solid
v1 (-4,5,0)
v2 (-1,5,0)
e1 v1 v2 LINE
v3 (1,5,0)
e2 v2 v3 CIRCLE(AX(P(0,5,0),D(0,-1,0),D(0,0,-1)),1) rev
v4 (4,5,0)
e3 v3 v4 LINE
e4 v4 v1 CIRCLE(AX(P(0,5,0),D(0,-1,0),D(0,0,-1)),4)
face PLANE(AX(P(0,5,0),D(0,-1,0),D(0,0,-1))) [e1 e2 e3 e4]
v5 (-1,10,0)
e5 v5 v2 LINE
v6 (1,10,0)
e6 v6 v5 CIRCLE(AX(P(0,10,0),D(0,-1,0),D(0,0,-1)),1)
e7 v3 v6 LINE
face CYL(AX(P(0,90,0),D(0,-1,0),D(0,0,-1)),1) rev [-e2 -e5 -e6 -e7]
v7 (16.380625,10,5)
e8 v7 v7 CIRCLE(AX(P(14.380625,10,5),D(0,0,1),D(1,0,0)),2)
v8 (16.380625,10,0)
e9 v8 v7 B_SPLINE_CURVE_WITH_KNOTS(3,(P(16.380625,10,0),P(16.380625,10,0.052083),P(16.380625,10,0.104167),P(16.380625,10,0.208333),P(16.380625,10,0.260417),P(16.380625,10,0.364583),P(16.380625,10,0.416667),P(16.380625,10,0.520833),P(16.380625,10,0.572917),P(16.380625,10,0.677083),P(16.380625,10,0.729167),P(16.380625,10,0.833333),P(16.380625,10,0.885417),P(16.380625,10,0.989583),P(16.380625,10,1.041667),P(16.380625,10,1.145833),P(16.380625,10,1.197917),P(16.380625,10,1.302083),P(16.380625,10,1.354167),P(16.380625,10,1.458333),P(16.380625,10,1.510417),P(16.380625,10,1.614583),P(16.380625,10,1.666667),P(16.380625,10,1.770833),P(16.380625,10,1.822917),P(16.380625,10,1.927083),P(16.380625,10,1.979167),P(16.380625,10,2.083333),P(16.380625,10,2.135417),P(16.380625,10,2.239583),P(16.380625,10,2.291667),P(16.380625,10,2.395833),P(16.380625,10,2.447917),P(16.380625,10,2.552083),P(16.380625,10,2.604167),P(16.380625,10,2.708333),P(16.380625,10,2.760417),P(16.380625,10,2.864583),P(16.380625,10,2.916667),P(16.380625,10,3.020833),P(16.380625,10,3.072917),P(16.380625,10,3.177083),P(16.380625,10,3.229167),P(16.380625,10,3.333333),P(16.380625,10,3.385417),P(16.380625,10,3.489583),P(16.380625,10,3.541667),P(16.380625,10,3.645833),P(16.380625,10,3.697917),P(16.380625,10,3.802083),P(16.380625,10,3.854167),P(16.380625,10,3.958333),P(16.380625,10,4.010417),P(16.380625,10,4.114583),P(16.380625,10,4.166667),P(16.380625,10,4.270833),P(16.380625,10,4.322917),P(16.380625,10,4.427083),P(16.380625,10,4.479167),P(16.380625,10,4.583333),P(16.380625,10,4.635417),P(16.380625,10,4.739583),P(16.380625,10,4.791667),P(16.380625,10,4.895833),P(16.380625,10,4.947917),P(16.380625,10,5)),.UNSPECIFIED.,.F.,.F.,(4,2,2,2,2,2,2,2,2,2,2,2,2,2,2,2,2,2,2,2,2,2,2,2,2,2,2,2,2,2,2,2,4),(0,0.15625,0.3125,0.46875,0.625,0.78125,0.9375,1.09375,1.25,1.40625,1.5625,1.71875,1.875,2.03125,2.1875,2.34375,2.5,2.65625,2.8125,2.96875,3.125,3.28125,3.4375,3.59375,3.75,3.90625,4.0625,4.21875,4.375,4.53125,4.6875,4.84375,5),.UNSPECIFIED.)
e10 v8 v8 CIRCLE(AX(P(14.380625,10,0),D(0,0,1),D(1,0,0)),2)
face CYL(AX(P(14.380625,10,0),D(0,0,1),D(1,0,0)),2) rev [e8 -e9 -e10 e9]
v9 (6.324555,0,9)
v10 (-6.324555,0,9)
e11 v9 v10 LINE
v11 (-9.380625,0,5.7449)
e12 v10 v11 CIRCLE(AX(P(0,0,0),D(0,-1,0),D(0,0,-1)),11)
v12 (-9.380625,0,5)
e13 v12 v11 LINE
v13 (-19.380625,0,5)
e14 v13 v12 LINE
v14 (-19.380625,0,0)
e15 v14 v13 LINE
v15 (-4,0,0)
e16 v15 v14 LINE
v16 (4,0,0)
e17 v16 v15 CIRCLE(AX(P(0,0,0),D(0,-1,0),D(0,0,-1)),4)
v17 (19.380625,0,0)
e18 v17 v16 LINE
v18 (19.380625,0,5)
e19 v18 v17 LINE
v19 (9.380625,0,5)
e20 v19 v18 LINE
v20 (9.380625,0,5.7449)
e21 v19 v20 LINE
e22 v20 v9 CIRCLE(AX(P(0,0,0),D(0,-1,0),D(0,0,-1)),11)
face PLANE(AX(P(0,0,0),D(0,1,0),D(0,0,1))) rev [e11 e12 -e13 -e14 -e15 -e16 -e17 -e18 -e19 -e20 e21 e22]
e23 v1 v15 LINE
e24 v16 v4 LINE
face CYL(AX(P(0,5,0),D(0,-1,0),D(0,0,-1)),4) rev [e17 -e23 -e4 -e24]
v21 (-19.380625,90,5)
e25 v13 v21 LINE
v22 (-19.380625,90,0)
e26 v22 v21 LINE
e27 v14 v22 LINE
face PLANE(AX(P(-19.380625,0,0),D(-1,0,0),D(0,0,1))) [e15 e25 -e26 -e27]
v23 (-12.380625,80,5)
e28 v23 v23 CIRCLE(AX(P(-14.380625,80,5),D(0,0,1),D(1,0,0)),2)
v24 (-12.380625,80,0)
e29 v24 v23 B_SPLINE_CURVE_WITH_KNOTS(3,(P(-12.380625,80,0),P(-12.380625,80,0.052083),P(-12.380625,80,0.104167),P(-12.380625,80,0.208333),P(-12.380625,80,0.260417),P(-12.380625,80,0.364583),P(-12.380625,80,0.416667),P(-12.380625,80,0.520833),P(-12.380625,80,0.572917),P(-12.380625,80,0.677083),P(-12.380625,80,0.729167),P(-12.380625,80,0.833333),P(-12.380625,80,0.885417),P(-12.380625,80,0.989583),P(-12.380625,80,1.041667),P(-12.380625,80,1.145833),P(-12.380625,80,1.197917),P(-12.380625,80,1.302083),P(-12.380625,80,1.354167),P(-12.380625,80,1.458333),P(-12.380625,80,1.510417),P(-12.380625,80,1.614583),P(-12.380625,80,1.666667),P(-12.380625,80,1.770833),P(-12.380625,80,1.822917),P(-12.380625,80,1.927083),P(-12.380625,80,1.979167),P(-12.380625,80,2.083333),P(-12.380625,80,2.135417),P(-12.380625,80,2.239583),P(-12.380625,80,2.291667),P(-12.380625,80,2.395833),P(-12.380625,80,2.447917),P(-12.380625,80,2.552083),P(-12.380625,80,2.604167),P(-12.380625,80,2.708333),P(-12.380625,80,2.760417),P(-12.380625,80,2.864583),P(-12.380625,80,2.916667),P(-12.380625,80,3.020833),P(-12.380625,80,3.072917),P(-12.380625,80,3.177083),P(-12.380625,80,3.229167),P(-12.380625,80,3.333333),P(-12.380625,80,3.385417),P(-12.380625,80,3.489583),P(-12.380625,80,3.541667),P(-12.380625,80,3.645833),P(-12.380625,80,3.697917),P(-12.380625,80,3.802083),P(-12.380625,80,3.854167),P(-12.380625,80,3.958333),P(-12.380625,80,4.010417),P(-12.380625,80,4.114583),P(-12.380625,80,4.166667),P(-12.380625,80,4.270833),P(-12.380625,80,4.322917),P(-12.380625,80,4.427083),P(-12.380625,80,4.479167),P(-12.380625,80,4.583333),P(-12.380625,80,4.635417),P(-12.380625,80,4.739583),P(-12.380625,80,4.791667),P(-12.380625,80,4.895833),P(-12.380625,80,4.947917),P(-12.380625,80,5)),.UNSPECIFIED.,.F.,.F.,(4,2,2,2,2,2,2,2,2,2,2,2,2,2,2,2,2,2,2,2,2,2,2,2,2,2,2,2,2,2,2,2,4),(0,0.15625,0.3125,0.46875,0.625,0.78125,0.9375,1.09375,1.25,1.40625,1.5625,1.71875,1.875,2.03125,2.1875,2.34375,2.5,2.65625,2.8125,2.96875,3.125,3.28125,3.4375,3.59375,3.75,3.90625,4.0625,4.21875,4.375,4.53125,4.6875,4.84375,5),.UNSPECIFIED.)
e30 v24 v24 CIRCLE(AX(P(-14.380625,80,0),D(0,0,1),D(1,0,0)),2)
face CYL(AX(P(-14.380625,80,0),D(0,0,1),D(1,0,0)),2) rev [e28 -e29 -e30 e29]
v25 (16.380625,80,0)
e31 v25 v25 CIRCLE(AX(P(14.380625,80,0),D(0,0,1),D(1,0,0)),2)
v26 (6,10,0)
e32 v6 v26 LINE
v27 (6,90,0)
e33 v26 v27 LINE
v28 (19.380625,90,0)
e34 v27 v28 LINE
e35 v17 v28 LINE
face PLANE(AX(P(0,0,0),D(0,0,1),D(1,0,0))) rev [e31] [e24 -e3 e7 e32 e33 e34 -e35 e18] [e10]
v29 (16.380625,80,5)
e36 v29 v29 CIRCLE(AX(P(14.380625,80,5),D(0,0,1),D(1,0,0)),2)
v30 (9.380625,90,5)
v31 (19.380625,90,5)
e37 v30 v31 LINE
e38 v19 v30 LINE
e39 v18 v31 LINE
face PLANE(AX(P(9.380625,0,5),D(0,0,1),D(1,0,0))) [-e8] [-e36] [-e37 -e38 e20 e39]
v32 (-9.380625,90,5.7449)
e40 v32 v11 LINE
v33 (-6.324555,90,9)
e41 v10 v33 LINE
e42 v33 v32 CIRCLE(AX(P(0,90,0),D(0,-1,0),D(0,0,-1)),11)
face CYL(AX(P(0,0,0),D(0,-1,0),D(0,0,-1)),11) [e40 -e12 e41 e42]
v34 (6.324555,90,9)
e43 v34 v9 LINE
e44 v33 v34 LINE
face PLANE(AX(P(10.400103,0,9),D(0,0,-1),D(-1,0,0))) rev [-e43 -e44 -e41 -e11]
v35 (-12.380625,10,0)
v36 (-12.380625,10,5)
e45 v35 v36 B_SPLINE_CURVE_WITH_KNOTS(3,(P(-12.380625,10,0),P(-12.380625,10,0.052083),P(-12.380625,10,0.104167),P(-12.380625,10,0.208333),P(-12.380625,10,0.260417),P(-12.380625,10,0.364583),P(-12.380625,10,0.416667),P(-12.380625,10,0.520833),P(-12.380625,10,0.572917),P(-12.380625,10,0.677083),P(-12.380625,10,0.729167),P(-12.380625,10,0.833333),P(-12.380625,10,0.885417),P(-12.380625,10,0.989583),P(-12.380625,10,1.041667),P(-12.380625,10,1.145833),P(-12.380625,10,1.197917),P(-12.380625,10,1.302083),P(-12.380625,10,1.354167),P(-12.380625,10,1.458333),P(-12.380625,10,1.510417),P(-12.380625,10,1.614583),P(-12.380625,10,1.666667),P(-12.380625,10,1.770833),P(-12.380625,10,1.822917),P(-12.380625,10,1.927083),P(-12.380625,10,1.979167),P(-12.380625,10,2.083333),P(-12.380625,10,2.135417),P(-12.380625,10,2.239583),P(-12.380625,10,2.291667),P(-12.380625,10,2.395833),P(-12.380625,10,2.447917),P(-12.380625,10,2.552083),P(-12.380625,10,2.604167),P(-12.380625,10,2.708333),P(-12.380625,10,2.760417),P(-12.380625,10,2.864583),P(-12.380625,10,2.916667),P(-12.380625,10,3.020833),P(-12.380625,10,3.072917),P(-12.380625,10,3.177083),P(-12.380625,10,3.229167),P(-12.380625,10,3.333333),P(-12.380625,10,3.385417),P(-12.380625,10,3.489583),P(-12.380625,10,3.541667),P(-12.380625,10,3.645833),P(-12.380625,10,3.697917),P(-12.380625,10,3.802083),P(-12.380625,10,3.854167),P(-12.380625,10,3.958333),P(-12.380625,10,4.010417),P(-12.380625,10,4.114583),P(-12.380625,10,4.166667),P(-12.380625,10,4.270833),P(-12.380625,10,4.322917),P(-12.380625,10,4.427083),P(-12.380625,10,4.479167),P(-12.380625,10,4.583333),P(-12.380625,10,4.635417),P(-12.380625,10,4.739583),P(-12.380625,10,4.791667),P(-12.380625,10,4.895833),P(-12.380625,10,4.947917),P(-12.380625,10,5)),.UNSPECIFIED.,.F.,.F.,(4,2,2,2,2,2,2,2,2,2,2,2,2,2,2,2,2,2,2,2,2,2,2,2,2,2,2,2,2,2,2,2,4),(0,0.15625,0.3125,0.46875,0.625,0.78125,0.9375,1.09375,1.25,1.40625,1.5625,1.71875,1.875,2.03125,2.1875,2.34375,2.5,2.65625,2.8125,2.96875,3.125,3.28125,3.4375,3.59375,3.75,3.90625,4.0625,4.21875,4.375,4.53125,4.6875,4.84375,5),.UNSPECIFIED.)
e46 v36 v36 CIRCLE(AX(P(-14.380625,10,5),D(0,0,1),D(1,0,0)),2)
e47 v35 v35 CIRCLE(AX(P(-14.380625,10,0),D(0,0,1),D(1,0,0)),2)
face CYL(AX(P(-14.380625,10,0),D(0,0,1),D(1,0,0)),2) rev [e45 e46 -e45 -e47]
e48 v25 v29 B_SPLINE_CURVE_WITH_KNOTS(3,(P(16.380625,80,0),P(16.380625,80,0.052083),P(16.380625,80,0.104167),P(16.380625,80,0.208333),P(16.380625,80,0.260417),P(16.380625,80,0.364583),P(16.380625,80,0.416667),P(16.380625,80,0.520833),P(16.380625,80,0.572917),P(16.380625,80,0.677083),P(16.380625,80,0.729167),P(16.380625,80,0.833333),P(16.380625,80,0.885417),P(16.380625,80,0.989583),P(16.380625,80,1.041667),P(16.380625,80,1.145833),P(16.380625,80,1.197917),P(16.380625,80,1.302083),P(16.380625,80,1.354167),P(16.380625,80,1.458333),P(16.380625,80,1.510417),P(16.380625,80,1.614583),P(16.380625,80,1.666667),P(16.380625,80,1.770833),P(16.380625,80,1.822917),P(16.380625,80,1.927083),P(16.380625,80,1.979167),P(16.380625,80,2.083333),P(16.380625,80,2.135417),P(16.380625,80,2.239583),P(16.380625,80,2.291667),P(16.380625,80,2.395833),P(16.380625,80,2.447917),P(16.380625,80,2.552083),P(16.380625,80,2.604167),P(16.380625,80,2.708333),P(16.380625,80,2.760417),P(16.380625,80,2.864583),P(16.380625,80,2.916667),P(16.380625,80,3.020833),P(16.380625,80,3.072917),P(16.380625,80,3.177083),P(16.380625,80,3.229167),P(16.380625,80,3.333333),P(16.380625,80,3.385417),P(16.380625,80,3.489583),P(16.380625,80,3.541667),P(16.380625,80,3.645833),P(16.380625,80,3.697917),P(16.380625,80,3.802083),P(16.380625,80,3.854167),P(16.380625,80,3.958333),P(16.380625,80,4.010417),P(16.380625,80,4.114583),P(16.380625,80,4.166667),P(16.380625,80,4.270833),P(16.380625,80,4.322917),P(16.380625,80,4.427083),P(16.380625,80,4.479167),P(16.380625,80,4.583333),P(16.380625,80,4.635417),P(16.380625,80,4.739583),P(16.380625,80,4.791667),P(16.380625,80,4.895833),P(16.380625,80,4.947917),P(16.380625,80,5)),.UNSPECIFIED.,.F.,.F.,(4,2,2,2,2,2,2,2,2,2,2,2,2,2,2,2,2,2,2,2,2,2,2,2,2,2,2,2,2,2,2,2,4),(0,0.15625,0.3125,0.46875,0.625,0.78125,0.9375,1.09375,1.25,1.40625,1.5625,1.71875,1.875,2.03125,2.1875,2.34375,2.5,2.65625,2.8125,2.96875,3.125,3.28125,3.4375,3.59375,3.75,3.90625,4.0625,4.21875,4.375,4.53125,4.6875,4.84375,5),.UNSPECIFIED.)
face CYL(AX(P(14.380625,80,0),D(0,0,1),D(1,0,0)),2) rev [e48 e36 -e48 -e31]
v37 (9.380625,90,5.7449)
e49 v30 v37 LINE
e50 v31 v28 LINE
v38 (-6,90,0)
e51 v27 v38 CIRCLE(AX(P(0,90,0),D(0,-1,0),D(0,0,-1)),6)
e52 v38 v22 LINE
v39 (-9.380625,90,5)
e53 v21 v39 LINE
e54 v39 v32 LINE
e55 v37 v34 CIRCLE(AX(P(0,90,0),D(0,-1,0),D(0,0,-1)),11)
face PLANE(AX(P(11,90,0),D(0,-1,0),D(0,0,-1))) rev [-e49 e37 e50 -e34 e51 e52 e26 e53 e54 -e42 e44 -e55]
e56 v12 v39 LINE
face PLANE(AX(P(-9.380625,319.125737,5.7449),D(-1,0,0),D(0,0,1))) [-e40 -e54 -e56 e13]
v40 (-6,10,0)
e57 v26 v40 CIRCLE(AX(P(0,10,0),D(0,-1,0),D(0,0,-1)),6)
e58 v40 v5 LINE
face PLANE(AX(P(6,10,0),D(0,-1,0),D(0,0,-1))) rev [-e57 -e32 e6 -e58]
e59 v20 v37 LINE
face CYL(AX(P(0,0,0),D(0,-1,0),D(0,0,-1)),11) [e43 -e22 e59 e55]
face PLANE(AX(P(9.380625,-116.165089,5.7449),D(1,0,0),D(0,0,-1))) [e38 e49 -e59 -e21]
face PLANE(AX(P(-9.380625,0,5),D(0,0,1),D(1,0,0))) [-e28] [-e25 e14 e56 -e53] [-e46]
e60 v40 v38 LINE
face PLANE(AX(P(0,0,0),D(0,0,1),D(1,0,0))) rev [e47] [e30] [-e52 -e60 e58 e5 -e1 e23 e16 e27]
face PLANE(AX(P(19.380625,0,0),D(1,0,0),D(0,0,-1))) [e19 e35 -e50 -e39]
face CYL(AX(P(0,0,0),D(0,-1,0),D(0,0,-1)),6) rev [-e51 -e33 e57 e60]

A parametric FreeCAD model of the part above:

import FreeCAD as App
import Part
import Sketcher

V = App.Vector
Q = App.Units.Quantity


def add_polygon(sketch, points):
    """Adds a closed chain of lines whose ends are joined by coincident constraints."""
    first, n = sketch.GeometryCount, len(points)
    for a, b in zip(points, points[1:] + points[:1]):
        sketch.addGeometry(Part.LineSegment(App.Vector(*a, 0), App.Vector(*b, 0)), False)
    for i in range(n):
        sketch.addConstraint(Sketcher.Constraint("Coincident", first + i, 2, first + (i + 1) % n, 1))

doc = App.newDocument("Part")
body = doc.addObject("PartDesign::Body", "Body")

# Sketch on XY plane
sketch1 = body.newObject("Sketcher::SketchObject", "Sketch")
sketch1.AttachmentSupport = (doc.getObject("XY_Plane"), [""])
sketch1.MapMode = "FlatFace"
add_polygon(sketch1, [(-11, 0), (0, 0), (0, 10), (-6, 10), (-6, 90), (-11, 90)])  # lines 0-5
sketch1.addConstraint([
    Sketcher.Constraint("Horizontal", 0),
    Sketcher.Constraint("Vertical", 1),
    Sketcher.Constraint("Horizontal", 2),
    Sketcher.Constraint("Vertical", 3),
    Sketcher.Constraint("Horizontal", 4),
    Sketcher.Constraint("Vertical", 5),
    Sketcher.Constraint("Coincident", 0, 2, -1, 1),
    Sketcher.Constraint("DistanceX", 0, 1, 0, 2, Q("11 mm")),
    Sketcher.Constraint("DistanceX", 2, 2, 2, 1, Q("6 mm")),
    Sketcher.Constraint("DistanceY", 1, 1, 1, 2, Q("10 mm")),
    Sketcher.Constraint("DistanceY", 3, 1, 3, 2, Q("80 mm")),
])
revolution = body.newObject("PartDesign::Revolution", "Revolution")
revolution.Profile = sketch1
revolution.ReferenceAxis = (sketch1, ["V_Axis"])
revolution.Angle = 180

# Sketch on XZ plane
sketch2 = body.newObject("Sketcher::SketchObject", "Sketch001")
sketch2.AttachmentSupport = (doc.getObject("XZ_Plane"), [""])
sketch2.MapMode = "FlatFace"
sketch2.AttachmentOffset = App.Placement(V(0, 0, -90), App.Rotation())
add_polygon(sketch2, [(-9, 62), (-9, -56), (-122, -56), (-122, 62)])  # lines 0-3
sketch2.addConstraint([
    Sketcher.Constraint("Vertical", 0),
    Sketcher.Constraint("Horizontal", 1),
    Sketcher.Constraint("Vertical", 2),
    Sketcher.Constraint("Horizontal", 3),
    Sketcher.Constraint("DistanceX", 1, 2, 1, 1, Q("112.638642 mm")),
    Sketcher.Constraint("DistanceY", 0, 2, 0, 1, Q("118.383542 mm")),
    Sketcher.Constraint("DistanceY", 0, 2, -1, 1, Q("56.319321 mm")),
    Sketcher.Constraint("DistanceX", 0, 2, -1, 1, Q("9.380625 mm")),
])
pocket1 = body.newObject("PartDesign::Pocket", "Pocket")
pocket1.Profile = sketch2
pocket1.Type = "ThroughAll"
pocket1.Midplane = True

# Sketch on XZ plane
sketch3 = body.newObject("Sketcher::SketchObject", "Sketch002")
sketch3.AttachmentSupport = (doc.getObject("XZ_Plane"), [""])
sketch3.MapMode = "FlatFace"
add_polygon(sketch3, [(9, 59), (9, -53), (116, -53), (116, 59)])  # lines 0-3
sketch3.addConstraint([
    Sketcher.Constraint("Vertical", 0),
    Sketcher.Constraint("Horizontal", 1),
    Sketcher.Constraint("Vertical", 2),
    Sketcher.Constraint("Horizontal", 3),
    Sketcher.Constraint("DistanceX", 1, 1, 1, 2, Q("106.992826 mm")),
    Sketcher.Constraint("DistanceY", 0, 2, 0, 1, Q("112.737727 mm")),
    Sketcher.Constraint("DistanceX", -1, 1, 1, 2, Q("116.373451 mm")),
    Sketcher.Constraint("DistanceY", 0, 2, -1, 1, Q("53.496413 mm")),
])
pocket2 = body.newObject("PartDesign::Pocket", "Pocket001")
pocket2.Profile = sketch3
pocket2.Type = "ThroughAll"
pocket2.Midplane = True

# Sketch on XZ plane
sketch4 = body.newObject("Sketcher::SketchObject", "Sketch003")
sketch4.AttachmentSupport = (doc.getObject("XZ_Plane"), [""])
sketch4.MapMode = "FlatFace"
sketch4.AttachmentOffset = App.Placement(V(0, 0, -90), App.Rotation())
add_polygon(sketch4, [(-19, 0), (-19, 5), (-9, 5), (-9, 0)])  # lines 0-3
sketch4.addConstraint([
    Sketcher.Constraint("Vertical", 0),
    Sketcher.Constraint("Horizontal", 1),
    Sketcher.Constraint("Vertical", 2),
    Sketcher.Constraint("Horizontal", 3),
    Sketcher.Constraint("PointOnObject", 2, 2, -1),
    Sketcher.Constraint("DistanceX", 1, 1, 1, 2, Q("10 mm")),
    Sketcher.Constraint("DistanceY", 0, 1, 0, 2, Q("5 mm")),
    Sketcher.Constraint("DistanceX", 0, 2, -1, 1, Q("19.380625 mm")),
])
pad1 = body.newObject("PartDesign::Pad", "Pad")
pad1.Profile = sketch4
pad1.Length = 90

# Sketch on XZ plane
sketch5 = body.newObject("Sketcher::SketchObject", "Sketch004")
sketch5.AttachmentSupport = (doc.getObject("XZ_Plane"), [""])
sketch5.MapMode = "FlatFace"
sketch5.AttachmentOffset = App.Placement(V(0, 0, -90), App.Rotation())
add_polygon(sketch5, [(9, 0), (9, 5), (19, 5), (19, 0)])  # lines 0-3
sketch5.addConstraint([
    Sketcher.Constraint("Vertical", 0),
    Sketcher.Constraint("Horizontal", 1),
    Sketcher.Constraint("Vertical", 2),
    Sketcher.Constraint("Horizontal", 3),
    Sketcher.Constraint("PointOnObject", 2, 2, -1),
    Sketcher.Constraint("DistanceX", 1, 1, 1, 2, Q("10 mm")),
    Sketcher.Constraint("DistanceY", 0, 1, 0, 2, Q("5 mm")),
    Sketcher.Constraint("DistanceX", -1, 1, 0, 2, Q("9.380625 mm")),
])
pad2 = body.newObject("PartDesign::Pad", "Pad001")
pad2.Profile = sketch5
pad2.Length = 90

# Sketch on XY plane
sketch6 = body.newObject("Sketcher::SketchObject", "Sketch005")
sketch6.AttachmentSupport = (doc.getObject("XY_Plane"), [""])
sketch6.MapMode = "FlatFace"
sketch6.AttachmentOffset = App.Placement(V(0, 0, 5), App.Rotation())
sketch6.addGeometry([
    Part.Circle(V(-14.4, 80, 0), V(0, 0, 1), 2),
    Part.Circle(V(-14.4, 10, 0), V(0, 0, 1), 2),
    Part.Circle(V(14.4, 10, 0), V(0, 0, 1), 2),
    Part.Circle(V(14.4, 80, 0), V(0, 0, 1), 2),
], False)
sketch6.addConstraint([
    Sketcher.Constraint("Equal", 0, 1),
    Sketcher.Constraint("Equal", 1, 2),
    Sketcher.Constraint("Equal", 2, 3),
    Sketcher.Constraint("Symmetric", 1, 3, 2, 3, -2),
    Sketcher.Constraint("Symmetric", 0, 3, 3, 3, -2),
    Sketcher.Constraint("Vertical", 0, 3, 1, 3),
    Sketcher.Constraint("Diameter", 0, Q("4 mm")),
    Sketcher.Constraint("DistanceY", -1, 1, 0, 3, Q("80 mm")),
    Sketcher.Constraint("DistanceY", -1, 1, 1, 3, Q("10 mm")),
    Sketcher.Constraint("DistanceX", 1, 3, 2, 3, Q("28.76125 mm")),
])
pocket3 = body.newObject("PartDesign::Pocket", "Pocket002")
pocket3.Profile = sketch6
pocket3.Type = "ThroughAll"

# Sketch on XZ plane
sketch7 = body.newObject("Sketcher::SketchObject", "Sketch006")
sketch7.AttachmentSupport = (doc.getObject("XZ_Plane"), [""])
sketch7.MapMode = "FlatFace"
sketch7.addGeometry(Part.Circle(V(0, 0, 0), V(0, 0, 1), 1), False)
sketch7.addConstraint([
    Sketcher.Constraint("Coincident", 0, 3, -1, 1),
    Sketcher.Constraint("Diameter", 0, Q("2 mm")),
])
pocket4 = body.newObject("PartDesign::Pocket", "Pocket003")
pocket4.Profile = sketch7
pocket4.Type = "ThroughAll"

# Sketch on XZ plane
sketch8 = body.newObject("Sketcher::SketchObject", "Sketch007")
sketch8.AttachmentSupport = (doc.getObject("XZ_Plane"), [""])
sketch8.MapMode = "FlatFace"
sketch8.addGeometry(Part.Circle(V(0, 0, 0), V(0, 0, 1), 4), False)
sketch8.addConstraint([
    Sketcher.Constraint("Coincident", 0, 3, -1, 1),
    Sketcher.Constraint("Diameter", 0, Q("8 mm")),
])
pocket5 = body.newObject("PartDesign::Pocket", "Pocket004")
pocket5.Profile = sketch8
pocket5.Length = 5

# Sketch on XZ plane
sketch9 = body.newObject("Sketcher::SketchObject", "Sketch008")
sketch9.AttachmentSupport = (doc.getObject("XZ_Plane"), [""])
sketch9.MapMode = "FlatFace"
sketch9.AttachmentOffset = App.Placement(V(0, 0, -90), App.Rotation())
add_polygon(sketch9, [(-11.3, 9), (-11.3, 11), (10.4, 11), (10.4, 9)])  # lines 0-3
sketch9.addConstraint([
    Sketcher.Constraint("Vertical", 0),
    Sketcher.Constraint("Horizontal", 1),
    Sketcher.Constraint("Vertical", 2),
    Sketcher.Constraint("Horizontal", 3),
    Sketcher.Constraint("DistanceY", 0, 1, 0, 2, Q("2 mm")),
    Sketcher.Constraint("DistanceY", -1, 1, 0, 2, Q("11 mm")),
    Sketcher.Constraint("DistanceX", 1, 1, 1, 2, Q("21.700649 mm")),
    Sketcher.Constraint("DistanceX", 0, 2, -1, 1, Q("11.300545 mm")),
])
pocket6 = body.newObject("PartDesign::Pocket", "Pocket005")
pocket6.Profile = sketch9
pocket6.Type = "ThroughAll"
pocket6.Reversed = True

doc.recompute()
